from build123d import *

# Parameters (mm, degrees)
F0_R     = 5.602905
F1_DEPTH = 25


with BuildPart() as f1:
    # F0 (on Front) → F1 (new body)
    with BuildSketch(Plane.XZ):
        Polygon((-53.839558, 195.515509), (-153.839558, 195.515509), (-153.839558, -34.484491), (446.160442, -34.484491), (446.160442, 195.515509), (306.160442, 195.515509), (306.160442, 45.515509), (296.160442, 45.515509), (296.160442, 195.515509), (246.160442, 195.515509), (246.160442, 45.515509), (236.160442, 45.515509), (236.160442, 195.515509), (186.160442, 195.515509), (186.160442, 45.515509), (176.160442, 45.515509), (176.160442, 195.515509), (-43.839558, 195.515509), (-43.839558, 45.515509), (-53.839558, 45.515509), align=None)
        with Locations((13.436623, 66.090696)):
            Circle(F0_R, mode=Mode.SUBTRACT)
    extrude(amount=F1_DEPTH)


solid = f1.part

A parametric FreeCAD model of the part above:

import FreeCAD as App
import Part
import Sketcher

V = App.Vector
Q = App.Units.Quantity

doc = App.newDocument("Part")
params = doc.addObject("Spreadsheet::Sheet", "Params")
for row, (alias, value) in enumerate([
    ("sketch1_width", "100 mm"),
    ("sketch1_width2", "600 mm"),
    ("sketch1_width3", "140 mm"),
    ("sketch1_width4", "10 mm"),
    ("sketch1_width5", "50 mm"),
    ("pad1_length", "25 mm"),
], start=1):
    params.set(f"A{row}", alias)
    params.set(f"B{row}", "=" + value)
    params.setAlias(f"B{row}", alias)

body = doc.addObject("PartDesign::Body", "Body")

sketch1 = doc.addObject("Sketcher::SketchObject", "Sketch")
body.addObject(sketch1)
sketch1.AttachmentSupport = (doc.XZ_Plane, [""])
sketch1.MapMode = "FlatFace"
sketch1.addGeometry([
    Part.LineSegment(V(-53.839558, 195.515509, 0), V(-153.839558, 195.515509, 0)),
    Part.LineSegment(V(-153.839558, 195.515509, 0), V(-153.839558, -34.484491, 0)),
    Part.LineSegment(V(-153.839558, -34.484491, 0), V(446.160442, -34.484491, 0)),
    Part.LineSegment(V(446.160442, -34.484491, 0), V(446.160442, 195.515509, 0)),
    Part.LineSegment(V(446.160442, 195.515509, 0), V(306.160442, 195.515509, 0)),
    Part.LineSegment(V(306.160442, 195.515509, 0), V(306.160442, 45.515509, 0)),
    Part.LineSegment(V(306.160442, 45.515509, 0), V(296.160442, 45.515509, 0)),
    Part.LineSegment(V(296.160442, 45.515509, 0), V(296.160442, 195.515509, 0)),
    Part.LineSegment(V(296.160442, 195.515509, 0), V(246.160442, 195.515509, 0)),
    Part.LineSegment(V(246.160442, 195.515509, 0), V(246.160442, 45.515509, 0)),
    Part.LineSegment(V(246.160442, 45.515509, 0), V(236.160442, 45.515509, 0)),
    Part.LineSegment(V(236.160442, 45.515509, 0), V(236.160442, 195.515509, 0)),
    Part.LineSegment(V(236.160442, 195.515509, 0), V(186.160442, 195.515509, 0)),
    Part.LineSegment(V(186.160442, 195.515509, 0), V(186.160442, 45.515509, 0)),
    Part.LineSegment(V(186.160442, 45.515509, 0), V(176.160442, 45.515509, 0)),
    Part.LineSegment(V(176.160442, 45.515509, 0), V(176.160442, 195.515509, 0)),
    Part.LineSegment(V(176.160442, 195.515509, 0), V(-43.839558, 195.515509, 0)),
    Part.LineSegment(V(-43.839558, 195.515509, 0), V(-43.839558, 45.515509, 0)),
    Part.LineSegment(V(-43.839558, 45.515509, 0), V(-53.839558, 45.515509, 0)),
    Part.LineSegment(V(-53.839558, 45.515509, 0), V(-53.839558, 195.515509, 0)),
    Part.Circle(V(13.436623, 66.090696, 0), V(0, 0, 1), 5.602905),
], False)
sketch1.addConstraint([
    Sketcher.Constraint("Coincident", 0, 2, 1, 1),
    Sketcher.Constraint("Coincident", 1, 2, 2, 1),
    Sketcher.Constraint("Coincident", 2, 2, 3, 1),
    Sketcher.Constraint("Coincident", 3, 2, 4, 1),
    Sketcher.Constraint("Coincident", 4, 2, 5, 1),
    Sketcher.Constraint("Coincident", 5, 2, 6, 1),
    Sketcher.Constraint("Coincident", 6, 2, 7, 1),
    Sketcher.Constraint("Coincident", 7, 2, 8, 1),
    Sketcher.Constraint("Coincident", 8, 2, 9, 1),
    Sketcher.Constraint("Coincident", 9, 2, 10, 1),
    Sketcher.Constraint("Coincident", 10, 2, 11, 1),
    Sketcher.Constraint("Coincident", 11, 2, 12, 1),
    Sketcher.Constraint("Coincident", 12, 2, 13, 1),
    Sketcher.Constraint("Coincident", 13, 2, 14, 1),
    Sketcher.Constraint("Coincident", 14, 2, 15, 1),
    Sketcher.Constraint("Coincident", 15, 2, 16, 1),
    Sketcher.Constraint("Coincident", 16, 2, 17, 1),
    Sketcher.Constraint("Coincident", 17, 2, 18, 1),
    Sketcher.Constraint("Coincident", 18, 2, 19, 1),
    Sketcher.Constraint("Coincident", 19, 2, 0, 1),
    Sketcher.Constraint("Horizontal", 0),
    Sketcher.Constraint("Vertical", 1),
    Sketcher.Constraint("Horizontal", 2),
    Sketcher.Constraint("Vertical", 3),
    Sketcher.Constraint("Horizontal", 4),
    Sketcher.Constraint("Vertical", 5),
    Sketcher.Constraint("Horizontal", 6),
    Sketcher.Constraint("Vertical", 7),
    Sketcher.Constraint("Horizontal", 8),
    Sketcher.Constraint("Vertical", 9),
    Sketcher.Constraint("Horizontal", 10),
    Sketcher.Constraint("Vertical", 11),
    Sketcher.Constraint("Horizontal", 12),
    Sketcher.Constraint("Vertical", 13),
    Sketcher.Constraint("Horizontal", 14),
    Sketcher.Constraint("Vertical", 15),
    Sketcher.Constraint("Horizontal", 16),
    Sketcher.Constraint("Vertical", 17),
    Sketcher.Constraint("Horizontal", 18),
    Sketcher.Constraint("Vertical", 19),
    Sketcher.Constraint("Horizontal", 0, 2, 3, 2),
    Sketcher.Constraint("Horizontal", 4, 2, 7, 2),
    Sketcher.Constraint("Horizontal", 6, 2, 9, 2),
    Sketcher.Constraint("Horizontal", 8, 2, 11, 2),
    Sketcher.Constraint("Horizontal", 10, 2, 13, 2),
    Sketcher.Constraint("Horizontal", 12, 2, 15, 2),
    Sketcher.Constraint("Horizontal", 14, 2, 17, 2),
    Sketcher.Constraint("Equal", 6, 10),
    Sketcher.Constraint("Equal", 8, 12),
    Sketcher.Constraint("Equal", 10, 14),
    Sketcher.Constraint("Equal", 14, 18),
    Sketcher.Constraint("DistanceX", 0, 2, 0, 1, Q("100 mm")),
    Sketcher.Constraint("DistanceX", 2, 1, 2, 2, Q("600 mm")),
    Sketcher.Constraint("DistanceX", 4, 2, 4, 1, Q("140 mm")),
    Sketcher.Constraint("DistanceX", 6, 2, 6, 1, Q("10 mm")),
    Sketcher.Constraint("DistanceX", 8, 2, 8, 1, Q("50 mm")),
    Sketcher.Constraint("DistanceY", 1, 2, 1, 1, Q("230 mm")),
    Sketcher.Constraint("DistanceY", 5, 2, 5, 1, Q("150 mm")),
    Sketcher.Constraint("Diameter", 20, Q("11.20581 mm")),
    Sketcher.Constraint("DistanceX", 0, 2, -1, 1, Q("153.839558 mm")),
    Sketcher.Constraint("DistanceY", -1, 1, 0, 2, Q("195.515509 mm")),
    Sketcher.Constraint("DistanceX", 0, 2, 20, 3, Q("167.276181 mm")),
    Sketcher.Constraint("DistanceY", -1, 1, 20, 3, Q("66.090696 mm")),
])
sketch1.setExpression("Constraints[51]", "Params.sketch1_width")
sketch1.setExpression("Constraints[52]", "Params.sketch1_width2")
sketch1.setExpression("Constraints[53]", "Params.sketch1_width3")
sketch1.setExpression("Constraints[54]", "Params.sketch1_width4")
sketch1.setExpression("Constraints[55]", "Params.sketch1_width5")
pad1 = doc.addObject("PartDesign::Pad", "Pad")
body.addObject(pad1)
pad1.Profile = sketch1
pad1.setExpression("Length", "Params.pad1_length")

doc.recompute()
